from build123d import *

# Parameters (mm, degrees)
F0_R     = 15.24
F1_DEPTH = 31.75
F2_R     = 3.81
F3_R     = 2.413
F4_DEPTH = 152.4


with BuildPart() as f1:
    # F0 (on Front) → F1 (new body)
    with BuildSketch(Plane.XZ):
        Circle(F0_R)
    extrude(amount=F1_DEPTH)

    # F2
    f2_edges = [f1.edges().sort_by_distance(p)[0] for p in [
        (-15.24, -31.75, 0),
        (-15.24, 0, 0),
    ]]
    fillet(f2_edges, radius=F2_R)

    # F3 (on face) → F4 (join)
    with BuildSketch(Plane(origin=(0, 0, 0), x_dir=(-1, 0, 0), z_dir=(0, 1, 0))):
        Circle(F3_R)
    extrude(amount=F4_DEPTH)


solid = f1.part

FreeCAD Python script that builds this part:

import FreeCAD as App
import Part
import Sketcher
Q = App.Units.Quantity


def edges_at(feature, points):
    """Names of the edges that pass closest to the given points."""
    edges = feature.Shape.Edges
    near = lambda p: min(range(len(edges)), key=lambda i: edges[i].distToShape(Part.Vertex(*p))[0])
    return sorted({f"Edge{near(p) + 1}" for p in points})

doc = App.newDocument("Part")
body = doc.addObject("PartDesign::Body", "Body")

sketch1 = body.newObject("Sketcher::SketchObject", "Sketch")
sketch1.AttachmentSupport = (doc.getObject("XZ_Plane"), [""])
sketch1.MapMode = "FlatFace"
sketch1.addGeometry(Part.Circle(App.Vector(0, 0, 0), App.Vector(0, 0, 1), 15), False)
sketch1.addConstraint([
    Sketcher.Constraint("Coincident", 0, 3, -1, 1),
    Sketcher.Constraint("Diameter", 0, Q("1.2 in")),
])
pad1 = body.newObject("PartDesign::Pad", "Pad")
pad1.Profile = sketch1
pad1.Length = Q("1.25 in")
doc.recompute()

fillet = body.newObject("PartDesign::Fillet", "Fillet")
fillet.Base = (pad1, edges_at(pad1, [(-15.24, -31.75, 0), (-15.24, 0, 0)]))
fillet.Radius = Q("0.15 in")

sketch2 = body.newObject("Sketcher::SketchObject", "Sketch001")
sketch2.AttachmentSupport = (doc.getObject("XZ_Plane"), [""])
sketch2.MapMode = "FlatFace"
sketch2.addGeometry(Part.Circle(App.Vector(0, 0, 0), App.Vector(0, 0, 1), 2.4), False)
sketch2.addConstraint([
    Sketcher.Constraint("Coincident", 0, 3, -1, 1),
    Sketcher.Constraint("Diameter", 0, Q("0.19 in")),
])
pad2 = body.newObject("PartDesign::Pad", "Pad001")
pad2.Profile = sketch2
pad2.Length = Q("6 in")
pad2.Reversed = True

doc.recompute()
